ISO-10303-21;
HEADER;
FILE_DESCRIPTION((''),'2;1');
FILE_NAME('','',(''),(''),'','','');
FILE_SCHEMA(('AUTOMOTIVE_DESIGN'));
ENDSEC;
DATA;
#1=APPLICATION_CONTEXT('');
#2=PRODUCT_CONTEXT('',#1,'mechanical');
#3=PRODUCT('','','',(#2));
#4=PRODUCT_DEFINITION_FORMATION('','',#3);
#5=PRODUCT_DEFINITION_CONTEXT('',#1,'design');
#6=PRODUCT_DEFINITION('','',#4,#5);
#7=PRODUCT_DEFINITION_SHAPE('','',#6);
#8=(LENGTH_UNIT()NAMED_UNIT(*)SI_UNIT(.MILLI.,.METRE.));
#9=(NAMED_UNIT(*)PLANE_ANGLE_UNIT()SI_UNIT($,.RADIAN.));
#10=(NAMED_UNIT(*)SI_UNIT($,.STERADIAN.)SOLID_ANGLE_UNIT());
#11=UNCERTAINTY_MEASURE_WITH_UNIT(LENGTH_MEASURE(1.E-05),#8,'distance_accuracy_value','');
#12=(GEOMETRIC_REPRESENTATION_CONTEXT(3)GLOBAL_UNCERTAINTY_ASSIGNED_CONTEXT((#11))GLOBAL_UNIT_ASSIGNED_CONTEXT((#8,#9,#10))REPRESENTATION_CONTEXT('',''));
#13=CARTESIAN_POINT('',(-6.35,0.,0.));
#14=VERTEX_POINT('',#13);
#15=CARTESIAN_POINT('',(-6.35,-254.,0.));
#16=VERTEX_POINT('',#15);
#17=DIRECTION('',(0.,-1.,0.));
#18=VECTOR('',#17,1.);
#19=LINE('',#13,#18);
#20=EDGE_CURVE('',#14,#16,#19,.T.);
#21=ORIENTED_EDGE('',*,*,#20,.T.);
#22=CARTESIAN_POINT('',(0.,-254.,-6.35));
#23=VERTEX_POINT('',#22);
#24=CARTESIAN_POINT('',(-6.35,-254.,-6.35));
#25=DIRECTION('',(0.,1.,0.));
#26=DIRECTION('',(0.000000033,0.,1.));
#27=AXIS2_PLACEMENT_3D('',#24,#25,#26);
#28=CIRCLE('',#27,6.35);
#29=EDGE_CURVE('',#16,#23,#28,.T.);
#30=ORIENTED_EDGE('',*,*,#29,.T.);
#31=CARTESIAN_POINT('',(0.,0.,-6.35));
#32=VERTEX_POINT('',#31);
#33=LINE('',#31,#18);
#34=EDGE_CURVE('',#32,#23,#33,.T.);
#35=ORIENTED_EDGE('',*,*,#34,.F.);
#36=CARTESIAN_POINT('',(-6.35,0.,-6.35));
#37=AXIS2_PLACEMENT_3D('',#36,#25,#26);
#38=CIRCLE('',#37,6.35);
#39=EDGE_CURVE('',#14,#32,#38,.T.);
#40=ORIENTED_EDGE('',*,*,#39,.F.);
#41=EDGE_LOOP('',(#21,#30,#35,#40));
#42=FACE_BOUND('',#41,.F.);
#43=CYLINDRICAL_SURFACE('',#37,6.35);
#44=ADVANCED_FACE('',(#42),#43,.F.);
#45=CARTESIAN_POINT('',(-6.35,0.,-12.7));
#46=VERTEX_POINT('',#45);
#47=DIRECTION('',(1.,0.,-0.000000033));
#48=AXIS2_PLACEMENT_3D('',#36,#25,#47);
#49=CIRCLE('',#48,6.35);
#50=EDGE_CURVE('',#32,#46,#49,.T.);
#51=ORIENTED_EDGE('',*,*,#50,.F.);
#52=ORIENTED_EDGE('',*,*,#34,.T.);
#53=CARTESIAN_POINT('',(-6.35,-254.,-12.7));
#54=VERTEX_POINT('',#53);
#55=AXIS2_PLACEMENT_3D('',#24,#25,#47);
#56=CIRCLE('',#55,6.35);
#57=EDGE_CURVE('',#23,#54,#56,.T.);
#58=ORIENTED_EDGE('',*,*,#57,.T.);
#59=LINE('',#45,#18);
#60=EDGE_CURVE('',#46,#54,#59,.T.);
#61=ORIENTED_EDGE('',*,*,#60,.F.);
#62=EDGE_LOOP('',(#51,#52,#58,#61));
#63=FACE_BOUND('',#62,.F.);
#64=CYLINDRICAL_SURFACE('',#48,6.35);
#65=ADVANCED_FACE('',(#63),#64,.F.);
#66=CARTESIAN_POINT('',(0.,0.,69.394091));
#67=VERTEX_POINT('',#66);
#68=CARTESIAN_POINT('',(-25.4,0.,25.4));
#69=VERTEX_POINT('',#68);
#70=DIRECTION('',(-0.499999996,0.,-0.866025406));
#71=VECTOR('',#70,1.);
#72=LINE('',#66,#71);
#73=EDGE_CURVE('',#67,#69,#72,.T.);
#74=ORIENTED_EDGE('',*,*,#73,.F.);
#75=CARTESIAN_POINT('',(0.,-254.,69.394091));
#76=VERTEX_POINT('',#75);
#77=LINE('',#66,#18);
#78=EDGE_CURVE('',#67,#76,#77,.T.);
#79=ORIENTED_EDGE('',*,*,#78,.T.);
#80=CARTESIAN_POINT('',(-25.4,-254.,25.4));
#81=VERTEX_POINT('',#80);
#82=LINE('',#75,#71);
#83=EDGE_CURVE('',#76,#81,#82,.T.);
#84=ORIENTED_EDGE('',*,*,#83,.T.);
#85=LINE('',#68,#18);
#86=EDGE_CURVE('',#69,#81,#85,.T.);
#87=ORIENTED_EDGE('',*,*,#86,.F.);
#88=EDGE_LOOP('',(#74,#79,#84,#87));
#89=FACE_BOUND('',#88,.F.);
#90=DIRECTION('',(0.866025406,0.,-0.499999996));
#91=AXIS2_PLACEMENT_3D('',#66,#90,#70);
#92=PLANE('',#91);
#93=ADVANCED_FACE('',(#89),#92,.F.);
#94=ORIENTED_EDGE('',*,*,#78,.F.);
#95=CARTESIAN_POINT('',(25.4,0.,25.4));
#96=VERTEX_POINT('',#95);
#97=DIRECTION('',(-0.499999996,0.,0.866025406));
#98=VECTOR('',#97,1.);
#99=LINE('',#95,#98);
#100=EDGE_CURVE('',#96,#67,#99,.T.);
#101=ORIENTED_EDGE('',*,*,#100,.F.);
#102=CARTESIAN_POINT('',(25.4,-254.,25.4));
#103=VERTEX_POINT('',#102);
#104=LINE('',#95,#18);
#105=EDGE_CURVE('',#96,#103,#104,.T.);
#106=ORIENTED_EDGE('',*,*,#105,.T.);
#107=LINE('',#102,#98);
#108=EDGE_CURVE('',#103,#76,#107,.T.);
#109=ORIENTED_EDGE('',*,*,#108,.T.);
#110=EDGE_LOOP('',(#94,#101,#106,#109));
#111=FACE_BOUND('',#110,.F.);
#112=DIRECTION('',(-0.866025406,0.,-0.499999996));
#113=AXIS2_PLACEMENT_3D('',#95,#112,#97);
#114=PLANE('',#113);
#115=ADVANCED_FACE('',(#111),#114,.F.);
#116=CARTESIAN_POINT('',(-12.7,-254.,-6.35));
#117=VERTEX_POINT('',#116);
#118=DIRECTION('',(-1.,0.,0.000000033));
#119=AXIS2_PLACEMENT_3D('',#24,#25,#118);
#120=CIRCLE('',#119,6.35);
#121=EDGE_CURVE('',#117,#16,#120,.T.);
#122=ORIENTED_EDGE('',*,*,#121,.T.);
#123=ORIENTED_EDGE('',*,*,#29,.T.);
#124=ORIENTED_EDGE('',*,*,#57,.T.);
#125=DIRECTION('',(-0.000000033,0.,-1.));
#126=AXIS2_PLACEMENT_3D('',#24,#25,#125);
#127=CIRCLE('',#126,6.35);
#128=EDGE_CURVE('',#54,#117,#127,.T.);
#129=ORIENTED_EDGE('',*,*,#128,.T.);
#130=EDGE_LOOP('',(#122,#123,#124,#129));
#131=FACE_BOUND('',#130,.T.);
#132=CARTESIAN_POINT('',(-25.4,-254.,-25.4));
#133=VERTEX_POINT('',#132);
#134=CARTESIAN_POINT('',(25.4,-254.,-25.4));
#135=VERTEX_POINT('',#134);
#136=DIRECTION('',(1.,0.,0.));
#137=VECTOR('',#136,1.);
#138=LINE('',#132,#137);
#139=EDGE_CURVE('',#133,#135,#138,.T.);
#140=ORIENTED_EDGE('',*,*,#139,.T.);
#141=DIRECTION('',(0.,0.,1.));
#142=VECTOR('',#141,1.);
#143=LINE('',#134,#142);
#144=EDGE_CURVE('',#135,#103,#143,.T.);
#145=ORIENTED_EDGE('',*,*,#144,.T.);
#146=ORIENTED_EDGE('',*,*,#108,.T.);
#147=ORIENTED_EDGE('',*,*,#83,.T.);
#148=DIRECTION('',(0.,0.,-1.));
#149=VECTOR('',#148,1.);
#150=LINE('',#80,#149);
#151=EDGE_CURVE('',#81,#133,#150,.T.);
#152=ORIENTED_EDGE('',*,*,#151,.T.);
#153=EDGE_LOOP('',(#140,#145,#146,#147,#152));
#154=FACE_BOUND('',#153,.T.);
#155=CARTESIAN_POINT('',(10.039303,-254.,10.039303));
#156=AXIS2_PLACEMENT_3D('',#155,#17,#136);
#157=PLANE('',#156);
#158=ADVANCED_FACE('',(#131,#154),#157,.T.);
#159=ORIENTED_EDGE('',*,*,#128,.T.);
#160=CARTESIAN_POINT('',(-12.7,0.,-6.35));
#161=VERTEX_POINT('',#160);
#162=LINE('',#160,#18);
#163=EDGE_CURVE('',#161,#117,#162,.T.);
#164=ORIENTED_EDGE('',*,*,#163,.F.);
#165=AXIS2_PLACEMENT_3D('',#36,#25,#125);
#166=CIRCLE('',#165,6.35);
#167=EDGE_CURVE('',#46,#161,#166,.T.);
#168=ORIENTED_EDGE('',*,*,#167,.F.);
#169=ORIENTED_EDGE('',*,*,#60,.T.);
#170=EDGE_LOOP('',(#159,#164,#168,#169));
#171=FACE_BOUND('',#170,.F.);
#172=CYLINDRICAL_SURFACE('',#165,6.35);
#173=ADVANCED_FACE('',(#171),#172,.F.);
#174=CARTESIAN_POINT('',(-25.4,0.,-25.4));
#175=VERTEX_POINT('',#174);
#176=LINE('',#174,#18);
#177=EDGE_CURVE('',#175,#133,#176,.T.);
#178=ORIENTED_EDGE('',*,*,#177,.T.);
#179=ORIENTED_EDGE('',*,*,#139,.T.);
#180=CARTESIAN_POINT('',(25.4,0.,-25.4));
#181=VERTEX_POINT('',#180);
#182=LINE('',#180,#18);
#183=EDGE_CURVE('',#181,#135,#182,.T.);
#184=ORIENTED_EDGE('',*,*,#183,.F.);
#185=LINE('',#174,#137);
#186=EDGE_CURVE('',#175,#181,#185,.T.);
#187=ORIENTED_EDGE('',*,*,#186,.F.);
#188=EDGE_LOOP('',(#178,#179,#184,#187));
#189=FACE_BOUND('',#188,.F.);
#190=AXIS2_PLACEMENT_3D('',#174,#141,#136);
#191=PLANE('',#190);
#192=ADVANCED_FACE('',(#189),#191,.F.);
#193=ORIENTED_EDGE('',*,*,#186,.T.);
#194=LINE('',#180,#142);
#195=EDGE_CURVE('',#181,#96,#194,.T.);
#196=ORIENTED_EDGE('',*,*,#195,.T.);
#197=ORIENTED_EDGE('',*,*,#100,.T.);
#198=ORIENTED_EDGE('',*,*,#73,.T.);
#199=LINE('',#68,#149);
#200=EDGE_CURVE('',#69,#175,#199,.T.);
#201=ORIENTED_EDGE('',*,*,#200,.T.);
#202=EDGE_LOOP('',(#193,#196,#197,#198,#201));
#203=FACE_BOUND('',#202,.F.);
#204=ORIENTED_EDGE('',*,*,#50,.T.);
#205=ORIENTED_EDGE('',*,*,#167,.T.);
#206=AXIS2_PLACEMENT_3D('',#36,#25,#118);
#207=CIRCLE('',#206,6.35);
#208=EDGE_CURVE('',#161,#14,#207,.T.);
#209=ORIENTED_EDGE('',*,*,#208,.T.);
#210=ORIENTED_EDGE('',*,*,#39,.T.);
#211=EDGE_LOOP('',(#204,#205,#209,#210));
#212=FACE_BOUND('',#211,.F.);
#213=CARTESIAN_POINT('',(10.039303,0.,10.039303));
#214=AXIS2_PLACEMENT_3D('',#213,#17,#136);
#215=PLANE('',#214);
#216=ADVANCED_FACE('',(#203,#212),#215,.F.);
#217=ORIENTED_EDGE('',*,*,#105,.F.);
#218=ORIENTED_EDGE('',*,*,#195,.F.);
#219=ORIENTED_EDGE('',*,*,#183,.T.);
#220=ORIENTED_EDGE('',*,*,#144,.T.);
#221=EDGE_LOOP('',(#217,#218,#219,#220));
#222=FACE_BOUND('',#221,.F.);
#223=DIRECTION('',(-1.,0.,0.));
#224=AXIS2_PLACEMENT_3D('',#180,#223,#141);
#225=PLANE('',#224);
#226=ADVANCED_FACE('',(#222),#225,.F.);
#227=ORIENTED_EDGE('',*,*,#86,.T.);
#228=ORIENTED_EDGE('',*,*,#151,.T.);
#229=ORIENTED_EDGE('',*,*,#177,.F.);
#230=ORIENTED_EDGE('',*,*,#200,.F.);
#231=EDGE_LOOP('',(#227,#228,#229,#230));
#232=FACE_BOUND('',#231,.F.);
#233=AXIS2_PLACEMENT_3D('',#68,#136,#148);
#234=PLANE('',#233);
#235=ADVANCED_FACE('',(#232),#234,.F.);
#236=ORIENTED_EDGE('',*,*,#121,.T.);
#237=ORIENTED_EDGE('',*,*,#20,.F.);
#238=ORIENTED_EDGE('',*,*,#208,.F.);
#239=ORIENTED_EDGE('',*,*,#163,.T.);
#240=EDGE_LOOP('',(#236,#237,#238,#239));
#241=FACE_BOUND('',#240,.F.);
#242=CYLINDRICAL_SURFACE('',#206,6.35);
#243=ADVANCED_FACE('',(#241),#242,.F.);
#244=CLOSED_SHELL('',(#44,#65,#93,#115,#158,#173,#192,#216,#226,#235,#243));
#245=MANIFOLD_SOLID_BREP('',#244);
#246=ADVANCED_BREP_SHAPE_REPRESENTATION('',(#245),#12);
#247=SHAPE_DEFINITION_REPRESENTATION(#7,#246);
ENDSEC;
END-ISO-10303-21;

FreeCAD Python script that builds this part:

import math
import FreeCAD as App
import Part
import Sketcher
from FreeCAD import Vector
Q = App.Units.Quantity

doc = App.newDocument("Part")
body = doc.addObject("PartDesign::Body", "Body")

sketch1 = body.newObject("Sketcher::SketchObject", "Sketch")
sketch1.AttachmentSupport = (doc.getObject("XZ_Plane"), [""])
sketch1.MapMode = "FlatFace"
sketch1.addGeometry(Part.LineSegment(Vector(25, 25, 0), Vector(0, 69, 0)), False)
sketch1.addGeometry(Part.LineSegment(Vector(0, 69, 0), Vector(-25, 25, 0)), False)
sketch1.addGeometry(Part.LineSegment(Vector(-25, 25, 0), Vector(-25, -25, 0)), False)
sketch1.addGeometry(Part.LineSegment(Vector(-25, -25, 0), Vector(25, -25, 0)), False)
sketch1.addGeometry(Part.LineSegment(Vector(25, -25, 0), Vector(25, 25, 0)), False)
sketch1.addGeometry(Part.ArcOfCircle(Part.Circle(Vector(-6, -6, 0), Vector(0, 0, 1), 6), math.radians(90), math.radians(180)), False)
sketch1.addGeometry(Part.ArcOfCircle(Part.Circle(Vector(-6, -6, 0), Vector(0, 0, 1), 6), math.radians(0), math.radians(90)), False)
sketch1.addGeometry(Part.ArcOfCircle(Part.Circle(Vector(-6, -6, 0), Vector(0, 0, 1), 6), math.radians(-90), math.radians(0)), False)
sketch1.addGeometry(Part.ArcOfCircle(Part.Circle(Vector(-6, -6, 0), Vector(0, 0, 1), 6), math.radians(-180), math.radians(-90)), False)
sketch1.addConstraint(Sketcher.Constraint("Coincident", 0, 2, 1, 1))
sketch1.addConstraint(Sketcher.Constraint("Coincident", 1, 2, 2, 1))
sketch1.addConstraint(Sketcher.Constraint("Coincident", 2, 2, 3, 1))
sketch1.addConstraint(Sketcher.Constraint("Coincident", 3, 2, 4, 1))
sketch1.addConstraint(Sketcher.Constraint("Coincident", 4, 2, 0, 1))
sketch1.addConstraint(Sketcher.Constraint("Tangent", 5, 1, 6, 2))
sketch1.addConstraint(Sketcher.Constraint("Tangent", 6, 1, 7, 2))
sketch1.addConstraint(Sketcher.Constraint("Tangent", 7, 1, 8, 2))
sketch1.addConstraint(Sketcher.Constraint("Tangent", 8, 1, 5, 2))
sketch1.addConstraint(Sketcher.Constraint("Vertical", 2))
sketch1.addConstraint(Sketcher.Constraint("Horizontal", 3))
sketch1.addConstraint(Sketcher.Constraint("Vertical", 4))
sketch1.addConstraint(Sketcher.Constraint("Equal", 5, 6))
sketch1.addConstraint(Sketcher.Constraint("Symmetric", 1, 2, 3, 2, -1, 1))
sketch1.addConstraint(Sketcher.Constraint("PointOnObject", 0, 2, -2))
sketch1.addConstraint(Sketcher.Constraint("PointOnObject", 5, 1, -1))
sketch1.addConstraint(Sketcher.Constraint("PointOnObject", 6, 1, -2))
sketch1.addConstraint(Sketcher.Constraint("Horizontal", 1, 2, 4, 2))
sketch1.addConstraint(Sketcher.Constraint("Horizontal", 8, 3, 6, 1))
sketch1.addConstraint(Sketcher.Constraint("Horizontal", 6, 1, 8, 1))
sketch1.addConstraint(Sketcher.Constraint("Vertical", 8, 3, 5, 1))
sketch1.addConstraint(Sketcher.Constraint("Vertical", 5, 1, 7, 1))
sketch1.addConstraint(Sketcher.Constraint("Equal", 3, 2))
sketch1.addConstraint(Sketcher.Constraint("DistanceX", 3, 1, 3, 2, Q("2 in")))
sketch1.addConstraint(Sketcher.Constraint("Radius", 5, Q("0.25 in")))
sketch1.addConstraint(Sketcher.Constraint("Distance", 0, Q("2 in")))
pad1 = body.newObject("PartDesign::Pad", "Pad")
pad1.Profile = sketch1
pad1.Length = Q("10 in")

doc.recompute()
